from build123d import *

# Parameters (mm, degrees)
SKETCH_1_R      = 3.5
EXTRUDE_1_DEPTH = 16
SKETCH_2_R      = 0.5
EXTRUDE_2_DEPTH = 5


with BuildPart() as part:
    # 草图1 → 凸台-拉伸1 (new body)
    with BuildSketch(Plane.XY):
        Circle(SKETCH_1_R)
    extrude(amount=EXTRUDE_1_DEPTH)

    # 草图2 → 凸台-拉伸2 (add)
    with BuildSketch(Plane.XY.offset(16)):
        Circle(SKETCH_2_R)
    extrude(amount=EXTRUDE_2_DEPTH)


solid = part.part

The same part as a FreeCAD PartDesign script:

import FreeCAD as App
import Part
import Sketcher

V = App.Vector
Q = App.Units.Quantity

doc = App.newDocument("Part")
body = doc.addObject("PartDesign::Body", "Body")

sketch1 = body.newObject("Sketcher::SketchObject", "Sketch")
sketch1.AttachmentSupport = (doc.getObject("XY_Plane"), [""])
sketch1.MapMode = "FlatFace"
sketch1.addGeometry(Part.Circle(V(0, 0, 0), V(0, 0, 1), 3.5), False)
sketch1.addConstraint([
    Sketcher.Constraint("Coincident", 0, 3, -1, 1),
    Sketcher.Constraint("Diameter", 0, Q("7 mm")),
])
pad1 = body.newObject("PartDesign::Pad", "Pad")
pad1.Profile = sketch1
pad1.Length = 16

sketch2 = body.newObject("Sketcher::SketchObject", "Sketch001")
sketch2.AttachmentSupport = (doc.getObject("XY_Plane"), [""])
sketch2.MapMode = "FlatFace"
sketch2.AttachmentOffset = App.Placement(V(0, 0, 16), App.Rotation())
sketch2.addGeometry(Part.Circle(V(0, 0, 0), V(0, 0, 1), 0.5), False)
sketch2.addConstraint([
    Sketcher.Constraint("Coincident", 0, 3, -1, 1),
    Sketcher.Constraint("Diameter", 0, Q("1 mm")),
])
pad2 = body.newObject("PartDesign::Pad", "Pad001")
pad2.Profile = sketch2
pad2.Length = 5

doc.recompute()
